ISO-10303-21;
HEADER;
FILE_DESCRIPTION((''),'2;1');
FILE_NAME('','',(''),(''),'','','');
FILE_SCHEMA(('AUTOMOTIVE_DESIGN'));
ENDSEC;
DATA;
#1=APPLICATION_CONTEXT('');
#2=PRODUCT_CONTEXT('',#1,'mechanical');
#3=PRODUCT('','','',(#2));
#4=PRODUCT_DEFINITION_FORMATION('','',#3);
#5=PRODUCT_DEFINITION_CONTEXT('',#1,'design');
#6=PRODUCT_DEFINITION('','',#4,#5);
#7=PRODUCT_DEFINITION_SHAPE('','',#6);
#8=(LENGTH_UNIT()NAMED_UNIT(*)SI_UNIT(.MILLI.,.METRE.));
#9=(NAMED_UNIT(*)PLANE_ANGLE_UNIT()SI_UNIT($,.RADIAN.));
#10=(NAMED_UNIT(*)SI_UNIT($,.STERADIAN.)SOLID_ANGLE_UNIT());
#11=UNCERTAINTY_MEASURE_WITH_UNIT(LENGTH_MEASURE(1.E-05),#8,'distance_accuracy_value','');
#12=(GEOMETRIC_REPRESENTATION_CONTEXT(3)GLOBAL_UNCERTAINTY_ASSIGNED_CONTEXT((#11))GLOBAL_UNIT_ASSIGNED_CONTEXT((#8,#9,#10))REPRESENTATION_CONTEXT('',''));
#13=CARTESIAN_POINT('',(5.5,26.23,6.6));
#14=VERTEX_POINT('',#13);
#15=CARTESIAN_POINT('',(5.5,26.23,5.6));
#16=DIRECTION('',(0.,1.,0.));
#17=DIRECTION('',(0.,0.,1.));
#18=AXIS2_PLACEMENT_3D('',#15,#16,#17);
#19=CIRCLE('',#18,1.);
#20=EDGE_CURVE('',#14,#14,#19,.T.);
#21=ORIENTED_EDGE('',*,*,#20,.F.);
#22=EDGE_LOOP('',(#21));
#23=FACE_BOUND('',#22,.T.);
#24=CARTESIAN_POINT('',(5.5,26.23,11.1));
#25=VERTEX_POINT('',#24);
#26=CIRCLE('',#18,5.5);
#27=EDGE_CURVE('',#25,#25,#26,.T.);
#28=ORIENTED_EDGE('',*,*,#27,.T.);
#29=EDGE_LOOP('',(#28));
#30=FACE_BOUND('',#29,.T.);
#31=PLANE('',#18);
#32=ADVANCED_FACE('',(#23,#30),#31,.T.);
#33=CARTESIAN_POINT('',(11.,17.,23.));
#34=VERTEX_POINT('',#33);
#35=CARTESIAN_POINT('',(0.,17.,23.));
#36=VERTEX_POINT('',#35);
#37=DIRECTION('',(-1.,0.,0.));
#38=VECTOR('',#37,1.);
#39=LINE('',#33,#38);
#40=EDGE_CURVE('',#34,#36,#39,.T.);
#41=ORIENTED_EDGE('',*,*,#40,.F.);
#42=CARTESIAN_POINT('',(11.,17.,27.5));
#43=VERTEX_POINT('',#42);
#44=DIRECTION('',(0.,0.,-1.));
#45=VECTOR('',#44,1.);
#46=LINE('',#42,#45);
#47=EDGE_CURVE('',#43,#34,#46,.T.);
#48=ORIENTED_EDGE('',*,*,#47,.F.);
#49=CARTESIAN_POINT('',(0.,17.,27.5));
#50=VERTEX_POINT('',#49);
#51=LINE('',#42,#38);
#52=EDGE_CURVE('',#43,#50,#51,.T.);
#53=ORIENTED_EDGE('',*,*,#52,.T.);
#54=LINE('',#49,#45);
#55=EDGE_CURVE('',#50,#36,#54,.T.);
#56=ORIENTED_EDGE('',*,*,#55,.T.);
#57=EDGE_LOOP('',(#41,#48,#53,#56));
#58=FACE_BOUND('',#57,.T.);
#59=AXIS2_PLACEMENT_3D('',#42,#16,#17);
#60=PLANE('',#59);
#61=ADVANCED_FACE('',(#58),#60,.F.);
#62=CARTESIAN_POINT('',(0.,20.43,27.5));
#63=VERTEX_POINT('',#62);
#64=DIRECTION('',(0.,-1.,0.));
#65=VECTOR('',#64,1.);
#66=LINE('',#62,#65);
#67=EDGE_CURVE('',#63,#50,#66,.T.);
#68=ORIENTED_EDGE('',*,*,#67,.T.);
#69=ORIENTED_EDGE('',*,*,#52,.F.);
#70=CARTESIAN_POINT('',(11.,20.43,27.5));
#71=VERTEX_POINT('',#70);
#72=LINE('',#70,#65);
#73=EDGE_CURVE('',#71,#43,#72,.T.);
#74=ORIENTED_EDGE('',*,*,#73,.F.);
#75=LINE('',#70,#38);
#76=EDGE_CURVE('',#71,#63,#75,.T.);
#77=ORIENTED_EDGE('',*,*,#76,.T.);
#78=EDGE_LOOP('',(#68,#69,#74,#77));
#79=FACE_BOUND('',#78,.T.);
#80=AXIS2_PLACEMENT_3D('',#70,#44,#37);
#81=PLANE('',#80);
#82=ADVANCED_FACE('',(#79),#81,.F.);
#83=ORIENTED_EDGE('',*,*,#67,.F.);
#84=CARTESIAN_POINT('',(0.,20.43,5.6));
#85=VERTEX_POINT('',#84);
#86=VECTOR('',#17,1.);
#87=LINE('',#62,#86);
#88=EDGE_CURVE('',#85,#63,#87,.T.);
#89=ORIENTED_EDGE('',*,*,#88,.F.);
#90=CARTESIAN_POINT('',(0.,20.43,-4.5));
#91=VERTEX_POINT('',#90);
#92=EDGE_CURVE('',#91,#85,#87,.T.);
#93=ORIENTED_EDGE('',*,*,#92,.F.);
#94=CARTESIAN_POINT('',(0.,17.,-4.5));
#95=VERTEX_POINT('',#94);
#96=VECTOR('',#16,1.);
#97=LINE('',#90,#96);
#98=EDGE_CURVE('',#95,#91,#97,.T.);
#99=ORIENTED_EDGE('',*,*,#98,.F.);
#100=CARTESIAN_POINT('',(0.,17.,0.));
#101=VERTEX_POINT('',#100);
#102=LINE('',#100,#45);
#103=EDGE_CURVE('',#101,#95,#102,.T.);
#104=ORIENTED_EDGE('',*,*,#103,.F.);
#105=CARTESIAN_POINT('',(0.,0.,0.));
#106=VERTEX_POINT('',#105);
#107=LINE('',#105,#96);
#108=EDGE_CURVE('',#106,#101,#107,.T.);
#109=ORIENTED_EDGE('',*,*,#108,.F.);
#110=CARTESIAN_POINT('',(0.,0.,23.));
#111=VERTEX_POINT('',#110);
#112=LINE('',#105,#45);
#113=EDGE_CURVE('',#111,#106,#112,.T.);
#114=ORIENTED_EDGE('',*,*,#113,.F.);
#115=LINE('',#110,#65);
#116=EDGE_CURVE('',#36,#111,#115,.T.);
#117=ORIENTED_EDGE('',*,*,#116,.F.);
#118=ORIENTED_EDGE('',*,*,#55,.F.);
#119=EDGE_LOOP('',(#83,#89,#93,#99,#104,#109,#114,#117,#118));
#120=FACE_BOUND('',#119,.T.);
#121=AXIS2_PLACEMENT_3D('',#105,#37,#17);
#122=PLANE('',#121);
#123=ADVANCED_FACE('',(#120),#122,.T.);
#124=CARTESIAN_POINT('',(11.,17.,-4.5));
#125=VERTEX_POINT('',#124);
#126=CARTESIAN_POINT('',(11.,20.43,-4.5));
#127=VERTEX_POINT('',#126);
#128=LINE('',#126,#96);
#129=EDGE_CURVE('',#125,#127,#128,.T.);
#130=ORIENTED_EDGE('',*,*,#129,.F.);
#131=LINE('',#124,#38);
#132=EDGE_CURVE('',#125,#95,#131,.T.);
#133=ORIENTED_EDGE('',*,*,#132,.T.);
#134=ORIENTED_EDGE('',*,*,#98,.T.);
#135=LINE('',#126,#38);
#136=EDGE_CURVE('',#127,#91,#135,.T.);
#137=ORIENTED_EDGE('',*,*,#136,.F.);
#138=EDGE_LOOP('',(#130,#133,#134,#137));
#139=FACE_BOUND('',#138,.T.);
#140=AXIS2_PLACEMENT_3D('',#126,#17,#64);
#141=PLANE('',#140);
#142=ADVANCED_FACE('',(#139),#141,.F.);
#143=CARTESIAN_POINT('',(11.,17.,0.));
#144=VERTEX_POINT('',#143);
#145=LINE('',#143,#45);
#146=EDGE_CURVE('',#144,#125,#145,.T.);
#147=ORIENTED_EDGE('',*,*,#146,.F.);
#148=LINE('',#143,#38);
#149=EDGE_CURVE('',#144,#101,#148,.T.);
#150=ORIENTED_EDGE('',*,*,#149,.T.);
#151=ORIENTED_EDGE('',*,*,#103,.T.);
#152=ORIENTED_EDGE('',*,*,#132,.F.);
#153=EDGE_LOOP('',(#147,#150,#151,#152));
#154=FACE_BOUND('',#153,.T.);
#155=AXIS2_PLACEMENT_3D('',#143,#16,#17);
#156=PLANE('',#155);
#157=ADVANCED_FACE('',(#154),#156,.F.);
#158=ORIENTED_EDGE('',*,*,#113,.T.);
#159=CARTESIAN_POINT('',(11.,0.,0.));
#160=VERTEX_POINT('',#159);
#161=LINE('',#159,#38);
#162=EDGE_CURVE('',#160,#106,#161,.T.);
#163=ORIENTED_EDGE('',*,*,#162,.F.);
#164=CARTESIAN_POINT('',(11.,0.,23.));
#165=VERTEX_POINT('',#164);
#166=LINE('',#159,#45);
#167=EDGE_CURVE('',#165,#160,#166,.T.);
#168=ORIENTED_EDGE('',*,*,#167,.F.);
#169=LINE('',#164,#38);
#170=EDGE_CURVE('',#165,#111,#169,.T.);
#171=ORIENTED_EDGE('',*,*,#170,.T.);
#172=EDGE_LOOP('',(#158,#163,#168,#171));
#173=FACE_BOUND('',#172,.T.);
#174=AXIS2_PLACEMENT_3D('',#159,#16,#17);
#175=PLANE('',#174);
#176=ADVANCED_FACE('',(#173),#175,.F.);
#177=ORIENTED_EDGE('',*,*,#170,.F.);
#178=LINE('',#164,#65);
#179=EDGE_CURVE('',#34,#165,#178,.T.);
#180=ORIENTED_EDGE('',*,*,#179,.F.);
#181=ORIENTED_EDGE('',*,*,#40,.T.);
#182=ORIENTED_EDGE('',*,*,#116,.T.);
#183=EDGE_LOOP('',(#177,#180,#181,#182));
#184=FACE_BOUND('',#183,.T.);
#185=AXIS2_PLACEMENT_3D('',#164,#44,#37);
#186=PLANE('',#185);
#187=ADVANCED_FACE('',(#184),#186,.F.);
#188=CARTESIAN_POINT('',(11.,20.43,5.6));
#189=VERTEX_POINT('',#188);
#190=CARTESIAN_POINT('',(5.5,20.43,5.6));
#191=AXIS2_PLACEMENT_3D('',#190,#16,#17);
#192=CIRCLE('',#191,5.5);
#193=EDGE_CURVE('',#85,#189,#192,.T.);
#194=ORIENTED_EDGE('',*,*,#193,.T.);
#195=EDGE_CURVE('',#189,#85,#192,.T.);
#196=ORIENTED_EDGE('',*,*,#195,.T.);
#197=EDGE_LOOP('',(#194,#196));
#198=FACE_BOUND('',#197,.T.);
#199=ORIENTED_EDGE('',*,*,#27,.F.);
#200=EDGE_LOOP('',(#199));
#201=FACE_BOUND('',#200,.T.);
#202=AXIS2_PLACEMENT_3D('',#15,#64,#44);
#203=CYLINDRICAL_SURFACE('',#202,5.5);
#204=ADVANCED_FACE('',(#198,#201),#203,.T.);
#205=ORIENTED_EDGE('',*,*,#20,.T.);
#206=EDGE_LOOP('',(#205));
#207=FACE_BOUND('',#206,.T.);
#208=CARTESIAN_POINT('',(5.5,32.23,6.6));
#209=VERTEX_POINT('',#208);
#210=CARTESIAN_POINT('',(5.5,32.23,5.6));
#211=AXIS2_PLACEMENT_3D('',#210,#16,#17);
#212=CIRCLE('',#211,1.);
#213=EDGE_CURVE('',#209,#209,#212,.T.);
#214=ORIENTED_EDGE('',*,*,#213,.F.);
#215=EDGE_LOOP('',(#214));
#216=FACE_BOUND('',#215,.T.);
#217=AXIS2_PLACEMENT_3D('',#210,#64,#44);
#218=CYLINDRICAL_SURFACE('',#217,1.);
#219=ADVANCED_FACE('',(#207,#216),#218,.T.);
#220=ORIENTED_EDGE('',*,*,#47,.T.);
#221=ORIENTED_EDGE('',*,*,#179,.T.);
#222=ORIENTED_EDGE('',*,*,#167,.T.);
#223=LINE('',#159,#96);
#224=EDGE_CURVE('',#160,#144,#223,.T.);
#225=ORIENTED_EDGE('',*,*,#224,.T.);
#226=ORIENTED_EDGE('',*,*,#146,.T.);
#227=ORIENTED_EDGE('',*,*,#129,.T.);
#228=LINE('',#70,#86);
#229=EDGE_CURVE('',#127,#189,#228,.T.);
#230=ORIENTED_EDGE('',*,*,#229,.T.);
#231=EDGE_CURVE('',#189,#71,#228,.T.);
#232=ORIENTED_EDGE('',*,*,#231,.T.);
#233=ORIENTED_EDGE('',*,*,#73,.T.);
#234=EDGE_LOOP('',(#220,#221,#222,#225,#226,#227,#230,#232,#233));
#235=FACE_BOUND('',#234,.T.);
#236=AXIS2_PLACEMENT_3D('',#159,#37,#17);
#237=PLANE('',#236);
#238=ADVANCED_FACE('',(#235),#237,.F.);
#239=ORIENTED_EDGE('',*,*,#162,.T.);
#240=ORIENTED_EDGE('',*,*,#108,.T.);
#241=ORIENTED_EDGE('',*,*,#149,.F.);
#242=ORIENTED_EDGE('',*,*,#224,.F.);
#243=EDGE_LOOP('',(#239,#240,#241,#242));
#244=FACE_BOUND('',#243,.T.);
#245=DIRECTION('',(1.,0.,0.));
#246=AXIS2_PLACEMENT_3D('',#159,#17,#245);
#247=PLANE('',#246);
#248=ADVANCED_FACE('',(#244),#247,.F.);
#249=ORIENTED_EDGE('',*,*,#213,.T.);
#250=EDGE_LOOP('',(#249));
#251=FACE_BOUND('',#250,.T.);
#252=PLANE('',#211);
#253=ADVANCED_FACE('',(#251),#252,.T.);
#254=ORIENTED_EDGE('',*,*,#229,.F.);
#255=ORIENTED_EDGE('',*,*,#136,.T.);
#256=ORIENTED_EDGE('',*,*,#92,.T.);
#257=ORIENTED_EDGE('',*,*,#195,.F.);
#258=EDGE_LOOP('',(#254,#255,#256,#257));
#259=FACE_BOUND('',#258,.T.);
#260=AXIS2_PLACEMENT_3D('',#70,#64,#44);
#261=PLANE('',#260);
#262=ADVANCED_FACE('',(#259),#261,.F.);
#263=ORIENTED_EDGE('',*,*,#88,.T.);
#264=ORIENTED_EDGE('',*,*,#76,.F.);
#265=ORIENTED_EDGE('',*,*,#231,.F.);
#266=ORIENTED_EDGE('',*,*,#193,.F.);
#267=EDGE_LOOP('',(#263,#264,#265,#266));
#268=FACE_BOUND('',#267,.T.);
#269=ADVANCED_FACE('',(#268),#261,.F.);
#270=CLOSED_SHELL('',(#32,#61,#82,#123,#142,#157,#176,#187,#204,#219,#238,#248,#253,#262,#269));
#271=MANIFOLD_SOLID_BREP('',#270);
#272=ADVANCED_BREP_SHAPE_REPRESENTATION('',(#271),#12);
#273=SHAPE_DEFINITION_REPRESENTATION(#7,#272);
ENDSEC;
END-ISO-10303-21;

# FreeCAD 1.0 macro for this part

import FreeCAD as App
import Part
import Sketcher
from FreeCAD import Vector
Q = App.Units.Quantity

doc = App.newDocument("Part")
body = doc.addObject("PartDesign::Body", "Body")

# Sketch on YZ plane
sketch1 = body.newObject("Sketcher::SketchObject", "Sketch")
sketch1.AttachmentSupport = (doc.getObject("YZ_Plane"), [""])
sketch1.MapMode = "FlatFace"
sketch1.addGeometry([
    Part.LineSegment(Vector(17, 0, 0), Vector(17, -4.5, 0)),  # 0
    Part.LineSegment(Vector(17, -4.5, 0), Vector(20.43, -4.5, 0)),  # 1
    Part.LineSegment(Vector(20.43, -4.5, 0), Vector(20.43, 27.5, 0)),  # 2
    Part.LineSegment(Vector(20.43, 27.5, 0), Vector(17, 27.5, 0)),  # 3
    Part.LineSegment(Vector(17, 27.5, 0), Vector(17, 23, 0)),  # 4
    Part.LineSegment(Vector(17, 23, 0), Vector(0, 23, 0)),  # 5
    Part.LineSegment(Vector(0, 23, 0), Vector(0, 0, 0)),  # 6
    Part.LineSegment(Vector(0, 0, 0), Vector(17, 0, 0)),  # 7
], False)
sketch1.addConstraint([
    Sketcher.Constraint("Coincident", 0, 2, 1, 1),
    Sketcher.Constraint("Coincident", 1, 2, 2, 1),
    Sketcher.Constraint("Coincident", 2, 2, 3, 1),
    Sketcher.Constraint("Coincident", 3, 2, 4, 1),
    Sketcher.Constraint("Coincident", 4, 2, 5, 1),
    Sketcher.Constraint("Coincident", 5, 2, 6, 1),
    Sketcher.Constraint("Coincident", 6, 2, 7, 1),
    Sketcher.Constraint("Coincident", 7, 2, 0, 1),
    Sketcher.Constraint("Vertical", 0),
    Sketcher.Constraint("Horizontal", 1),
    Sketcher.Constraint("Vertical", 2),
    Sketcher.Constraint("Horizontal", 3),
    Sketcher.Constraint("Vertical", 4),
    Sketcher.Constraint("Horizontal", 5),
    Sketcher.Constraint("Vertical", 6),
    Sketcher.Constraint("Horizontal", 7),
    Sketcher.Constraint("Coincident", 6, 2, -1, 1),
    Sketcher.Constraint("Vertical", 0, 2, 3, 2),
    Sketcher.Constraint("Equal", 0, 4),
    Sketcher.Constraint("DistanceX", 5, 2, 5, 1, Q("17 mm")),
    Sketcher.Constraint("DistanceY", 2, 1, 2, 2, Q("32 mm")),
    Sketcher.Constraint("DistanceY", 6, 2, 6, 1, Q("23 mm")),
    Sketcher.Constraint("DistanceX", 1, 1, 1, 2, Q("3.43 mm")),
])
pad1 = body.newObject("PartDesign::Pad", "Pad")
pad1.Profile = sketch1
pad1.Length = 11

# Sketch on XZ plane
sketch2 = body.newObject("Sketcher::SketchObject", "Sketch001")
sketch2.AttachmentSupport = (doc.getObject("XZ_Plane"), [""])
sketch2.MapMode = "FlatFace"
sketch2.AttachmentOffset = App.Placement(Vector(0, 0, -20.43), App.Rotation())
sketch2.addGeometry(Part.Circle(Vector(5.5, 5.6, 0), Vector(0, 0, 1), 5.5), False)
sketch2.addConstraint([
    Sketcher.Constraint("Diameter", 0, Q("11 mm")),
    Sketcher.Constraint("DistanceX", -1, 1, 0, 3, Q("5.5 mm")),
    Sketcher.Constraint("DistanceY", -1, 1, 0, 3, Q("5.6 mm")),
])
pad2 = body.newObject("PartDesign::Pad", "Pad001")
pad2.Profile = sketch2
pad2.Length = 5.8
pad2.Reversed = True

# Sketch on XZ plane
sketch3 = body.newObject("Sketcher::SketchObject", "Sketch002")
sketch3.AttachmentSupport = (doc.getObject("XZ_Plane"), [""])
sketch3.MapMode = "FlatFace"
sketch3.AttachmentOffset = App.Placement(Vector(0, 0, -26.23), App.Rotation())
sketch3.addGeometry(Part.Circle(Vector(5.5, 5.6, 0), Vector(0, 0, 1), 1), False)
sketch3.addConstraint([
    Sketcher.Constraint("Diameter", 0, Q("2 mm")),
    Sketcher.Constraint("DistanceX", -1, 1, 0, 3, Q("5.5 mm")),
    Sketcher.Constraint("DistanceY", -1, 1, 0, 3, Q("5.6 mm")),
])
pad3 = body.newObject("PartDesign::Pad", "Pad002")
pad3.Profile = sketch3
pad3.Length = 6
pad3.Reversed = True

doc.recompute()
